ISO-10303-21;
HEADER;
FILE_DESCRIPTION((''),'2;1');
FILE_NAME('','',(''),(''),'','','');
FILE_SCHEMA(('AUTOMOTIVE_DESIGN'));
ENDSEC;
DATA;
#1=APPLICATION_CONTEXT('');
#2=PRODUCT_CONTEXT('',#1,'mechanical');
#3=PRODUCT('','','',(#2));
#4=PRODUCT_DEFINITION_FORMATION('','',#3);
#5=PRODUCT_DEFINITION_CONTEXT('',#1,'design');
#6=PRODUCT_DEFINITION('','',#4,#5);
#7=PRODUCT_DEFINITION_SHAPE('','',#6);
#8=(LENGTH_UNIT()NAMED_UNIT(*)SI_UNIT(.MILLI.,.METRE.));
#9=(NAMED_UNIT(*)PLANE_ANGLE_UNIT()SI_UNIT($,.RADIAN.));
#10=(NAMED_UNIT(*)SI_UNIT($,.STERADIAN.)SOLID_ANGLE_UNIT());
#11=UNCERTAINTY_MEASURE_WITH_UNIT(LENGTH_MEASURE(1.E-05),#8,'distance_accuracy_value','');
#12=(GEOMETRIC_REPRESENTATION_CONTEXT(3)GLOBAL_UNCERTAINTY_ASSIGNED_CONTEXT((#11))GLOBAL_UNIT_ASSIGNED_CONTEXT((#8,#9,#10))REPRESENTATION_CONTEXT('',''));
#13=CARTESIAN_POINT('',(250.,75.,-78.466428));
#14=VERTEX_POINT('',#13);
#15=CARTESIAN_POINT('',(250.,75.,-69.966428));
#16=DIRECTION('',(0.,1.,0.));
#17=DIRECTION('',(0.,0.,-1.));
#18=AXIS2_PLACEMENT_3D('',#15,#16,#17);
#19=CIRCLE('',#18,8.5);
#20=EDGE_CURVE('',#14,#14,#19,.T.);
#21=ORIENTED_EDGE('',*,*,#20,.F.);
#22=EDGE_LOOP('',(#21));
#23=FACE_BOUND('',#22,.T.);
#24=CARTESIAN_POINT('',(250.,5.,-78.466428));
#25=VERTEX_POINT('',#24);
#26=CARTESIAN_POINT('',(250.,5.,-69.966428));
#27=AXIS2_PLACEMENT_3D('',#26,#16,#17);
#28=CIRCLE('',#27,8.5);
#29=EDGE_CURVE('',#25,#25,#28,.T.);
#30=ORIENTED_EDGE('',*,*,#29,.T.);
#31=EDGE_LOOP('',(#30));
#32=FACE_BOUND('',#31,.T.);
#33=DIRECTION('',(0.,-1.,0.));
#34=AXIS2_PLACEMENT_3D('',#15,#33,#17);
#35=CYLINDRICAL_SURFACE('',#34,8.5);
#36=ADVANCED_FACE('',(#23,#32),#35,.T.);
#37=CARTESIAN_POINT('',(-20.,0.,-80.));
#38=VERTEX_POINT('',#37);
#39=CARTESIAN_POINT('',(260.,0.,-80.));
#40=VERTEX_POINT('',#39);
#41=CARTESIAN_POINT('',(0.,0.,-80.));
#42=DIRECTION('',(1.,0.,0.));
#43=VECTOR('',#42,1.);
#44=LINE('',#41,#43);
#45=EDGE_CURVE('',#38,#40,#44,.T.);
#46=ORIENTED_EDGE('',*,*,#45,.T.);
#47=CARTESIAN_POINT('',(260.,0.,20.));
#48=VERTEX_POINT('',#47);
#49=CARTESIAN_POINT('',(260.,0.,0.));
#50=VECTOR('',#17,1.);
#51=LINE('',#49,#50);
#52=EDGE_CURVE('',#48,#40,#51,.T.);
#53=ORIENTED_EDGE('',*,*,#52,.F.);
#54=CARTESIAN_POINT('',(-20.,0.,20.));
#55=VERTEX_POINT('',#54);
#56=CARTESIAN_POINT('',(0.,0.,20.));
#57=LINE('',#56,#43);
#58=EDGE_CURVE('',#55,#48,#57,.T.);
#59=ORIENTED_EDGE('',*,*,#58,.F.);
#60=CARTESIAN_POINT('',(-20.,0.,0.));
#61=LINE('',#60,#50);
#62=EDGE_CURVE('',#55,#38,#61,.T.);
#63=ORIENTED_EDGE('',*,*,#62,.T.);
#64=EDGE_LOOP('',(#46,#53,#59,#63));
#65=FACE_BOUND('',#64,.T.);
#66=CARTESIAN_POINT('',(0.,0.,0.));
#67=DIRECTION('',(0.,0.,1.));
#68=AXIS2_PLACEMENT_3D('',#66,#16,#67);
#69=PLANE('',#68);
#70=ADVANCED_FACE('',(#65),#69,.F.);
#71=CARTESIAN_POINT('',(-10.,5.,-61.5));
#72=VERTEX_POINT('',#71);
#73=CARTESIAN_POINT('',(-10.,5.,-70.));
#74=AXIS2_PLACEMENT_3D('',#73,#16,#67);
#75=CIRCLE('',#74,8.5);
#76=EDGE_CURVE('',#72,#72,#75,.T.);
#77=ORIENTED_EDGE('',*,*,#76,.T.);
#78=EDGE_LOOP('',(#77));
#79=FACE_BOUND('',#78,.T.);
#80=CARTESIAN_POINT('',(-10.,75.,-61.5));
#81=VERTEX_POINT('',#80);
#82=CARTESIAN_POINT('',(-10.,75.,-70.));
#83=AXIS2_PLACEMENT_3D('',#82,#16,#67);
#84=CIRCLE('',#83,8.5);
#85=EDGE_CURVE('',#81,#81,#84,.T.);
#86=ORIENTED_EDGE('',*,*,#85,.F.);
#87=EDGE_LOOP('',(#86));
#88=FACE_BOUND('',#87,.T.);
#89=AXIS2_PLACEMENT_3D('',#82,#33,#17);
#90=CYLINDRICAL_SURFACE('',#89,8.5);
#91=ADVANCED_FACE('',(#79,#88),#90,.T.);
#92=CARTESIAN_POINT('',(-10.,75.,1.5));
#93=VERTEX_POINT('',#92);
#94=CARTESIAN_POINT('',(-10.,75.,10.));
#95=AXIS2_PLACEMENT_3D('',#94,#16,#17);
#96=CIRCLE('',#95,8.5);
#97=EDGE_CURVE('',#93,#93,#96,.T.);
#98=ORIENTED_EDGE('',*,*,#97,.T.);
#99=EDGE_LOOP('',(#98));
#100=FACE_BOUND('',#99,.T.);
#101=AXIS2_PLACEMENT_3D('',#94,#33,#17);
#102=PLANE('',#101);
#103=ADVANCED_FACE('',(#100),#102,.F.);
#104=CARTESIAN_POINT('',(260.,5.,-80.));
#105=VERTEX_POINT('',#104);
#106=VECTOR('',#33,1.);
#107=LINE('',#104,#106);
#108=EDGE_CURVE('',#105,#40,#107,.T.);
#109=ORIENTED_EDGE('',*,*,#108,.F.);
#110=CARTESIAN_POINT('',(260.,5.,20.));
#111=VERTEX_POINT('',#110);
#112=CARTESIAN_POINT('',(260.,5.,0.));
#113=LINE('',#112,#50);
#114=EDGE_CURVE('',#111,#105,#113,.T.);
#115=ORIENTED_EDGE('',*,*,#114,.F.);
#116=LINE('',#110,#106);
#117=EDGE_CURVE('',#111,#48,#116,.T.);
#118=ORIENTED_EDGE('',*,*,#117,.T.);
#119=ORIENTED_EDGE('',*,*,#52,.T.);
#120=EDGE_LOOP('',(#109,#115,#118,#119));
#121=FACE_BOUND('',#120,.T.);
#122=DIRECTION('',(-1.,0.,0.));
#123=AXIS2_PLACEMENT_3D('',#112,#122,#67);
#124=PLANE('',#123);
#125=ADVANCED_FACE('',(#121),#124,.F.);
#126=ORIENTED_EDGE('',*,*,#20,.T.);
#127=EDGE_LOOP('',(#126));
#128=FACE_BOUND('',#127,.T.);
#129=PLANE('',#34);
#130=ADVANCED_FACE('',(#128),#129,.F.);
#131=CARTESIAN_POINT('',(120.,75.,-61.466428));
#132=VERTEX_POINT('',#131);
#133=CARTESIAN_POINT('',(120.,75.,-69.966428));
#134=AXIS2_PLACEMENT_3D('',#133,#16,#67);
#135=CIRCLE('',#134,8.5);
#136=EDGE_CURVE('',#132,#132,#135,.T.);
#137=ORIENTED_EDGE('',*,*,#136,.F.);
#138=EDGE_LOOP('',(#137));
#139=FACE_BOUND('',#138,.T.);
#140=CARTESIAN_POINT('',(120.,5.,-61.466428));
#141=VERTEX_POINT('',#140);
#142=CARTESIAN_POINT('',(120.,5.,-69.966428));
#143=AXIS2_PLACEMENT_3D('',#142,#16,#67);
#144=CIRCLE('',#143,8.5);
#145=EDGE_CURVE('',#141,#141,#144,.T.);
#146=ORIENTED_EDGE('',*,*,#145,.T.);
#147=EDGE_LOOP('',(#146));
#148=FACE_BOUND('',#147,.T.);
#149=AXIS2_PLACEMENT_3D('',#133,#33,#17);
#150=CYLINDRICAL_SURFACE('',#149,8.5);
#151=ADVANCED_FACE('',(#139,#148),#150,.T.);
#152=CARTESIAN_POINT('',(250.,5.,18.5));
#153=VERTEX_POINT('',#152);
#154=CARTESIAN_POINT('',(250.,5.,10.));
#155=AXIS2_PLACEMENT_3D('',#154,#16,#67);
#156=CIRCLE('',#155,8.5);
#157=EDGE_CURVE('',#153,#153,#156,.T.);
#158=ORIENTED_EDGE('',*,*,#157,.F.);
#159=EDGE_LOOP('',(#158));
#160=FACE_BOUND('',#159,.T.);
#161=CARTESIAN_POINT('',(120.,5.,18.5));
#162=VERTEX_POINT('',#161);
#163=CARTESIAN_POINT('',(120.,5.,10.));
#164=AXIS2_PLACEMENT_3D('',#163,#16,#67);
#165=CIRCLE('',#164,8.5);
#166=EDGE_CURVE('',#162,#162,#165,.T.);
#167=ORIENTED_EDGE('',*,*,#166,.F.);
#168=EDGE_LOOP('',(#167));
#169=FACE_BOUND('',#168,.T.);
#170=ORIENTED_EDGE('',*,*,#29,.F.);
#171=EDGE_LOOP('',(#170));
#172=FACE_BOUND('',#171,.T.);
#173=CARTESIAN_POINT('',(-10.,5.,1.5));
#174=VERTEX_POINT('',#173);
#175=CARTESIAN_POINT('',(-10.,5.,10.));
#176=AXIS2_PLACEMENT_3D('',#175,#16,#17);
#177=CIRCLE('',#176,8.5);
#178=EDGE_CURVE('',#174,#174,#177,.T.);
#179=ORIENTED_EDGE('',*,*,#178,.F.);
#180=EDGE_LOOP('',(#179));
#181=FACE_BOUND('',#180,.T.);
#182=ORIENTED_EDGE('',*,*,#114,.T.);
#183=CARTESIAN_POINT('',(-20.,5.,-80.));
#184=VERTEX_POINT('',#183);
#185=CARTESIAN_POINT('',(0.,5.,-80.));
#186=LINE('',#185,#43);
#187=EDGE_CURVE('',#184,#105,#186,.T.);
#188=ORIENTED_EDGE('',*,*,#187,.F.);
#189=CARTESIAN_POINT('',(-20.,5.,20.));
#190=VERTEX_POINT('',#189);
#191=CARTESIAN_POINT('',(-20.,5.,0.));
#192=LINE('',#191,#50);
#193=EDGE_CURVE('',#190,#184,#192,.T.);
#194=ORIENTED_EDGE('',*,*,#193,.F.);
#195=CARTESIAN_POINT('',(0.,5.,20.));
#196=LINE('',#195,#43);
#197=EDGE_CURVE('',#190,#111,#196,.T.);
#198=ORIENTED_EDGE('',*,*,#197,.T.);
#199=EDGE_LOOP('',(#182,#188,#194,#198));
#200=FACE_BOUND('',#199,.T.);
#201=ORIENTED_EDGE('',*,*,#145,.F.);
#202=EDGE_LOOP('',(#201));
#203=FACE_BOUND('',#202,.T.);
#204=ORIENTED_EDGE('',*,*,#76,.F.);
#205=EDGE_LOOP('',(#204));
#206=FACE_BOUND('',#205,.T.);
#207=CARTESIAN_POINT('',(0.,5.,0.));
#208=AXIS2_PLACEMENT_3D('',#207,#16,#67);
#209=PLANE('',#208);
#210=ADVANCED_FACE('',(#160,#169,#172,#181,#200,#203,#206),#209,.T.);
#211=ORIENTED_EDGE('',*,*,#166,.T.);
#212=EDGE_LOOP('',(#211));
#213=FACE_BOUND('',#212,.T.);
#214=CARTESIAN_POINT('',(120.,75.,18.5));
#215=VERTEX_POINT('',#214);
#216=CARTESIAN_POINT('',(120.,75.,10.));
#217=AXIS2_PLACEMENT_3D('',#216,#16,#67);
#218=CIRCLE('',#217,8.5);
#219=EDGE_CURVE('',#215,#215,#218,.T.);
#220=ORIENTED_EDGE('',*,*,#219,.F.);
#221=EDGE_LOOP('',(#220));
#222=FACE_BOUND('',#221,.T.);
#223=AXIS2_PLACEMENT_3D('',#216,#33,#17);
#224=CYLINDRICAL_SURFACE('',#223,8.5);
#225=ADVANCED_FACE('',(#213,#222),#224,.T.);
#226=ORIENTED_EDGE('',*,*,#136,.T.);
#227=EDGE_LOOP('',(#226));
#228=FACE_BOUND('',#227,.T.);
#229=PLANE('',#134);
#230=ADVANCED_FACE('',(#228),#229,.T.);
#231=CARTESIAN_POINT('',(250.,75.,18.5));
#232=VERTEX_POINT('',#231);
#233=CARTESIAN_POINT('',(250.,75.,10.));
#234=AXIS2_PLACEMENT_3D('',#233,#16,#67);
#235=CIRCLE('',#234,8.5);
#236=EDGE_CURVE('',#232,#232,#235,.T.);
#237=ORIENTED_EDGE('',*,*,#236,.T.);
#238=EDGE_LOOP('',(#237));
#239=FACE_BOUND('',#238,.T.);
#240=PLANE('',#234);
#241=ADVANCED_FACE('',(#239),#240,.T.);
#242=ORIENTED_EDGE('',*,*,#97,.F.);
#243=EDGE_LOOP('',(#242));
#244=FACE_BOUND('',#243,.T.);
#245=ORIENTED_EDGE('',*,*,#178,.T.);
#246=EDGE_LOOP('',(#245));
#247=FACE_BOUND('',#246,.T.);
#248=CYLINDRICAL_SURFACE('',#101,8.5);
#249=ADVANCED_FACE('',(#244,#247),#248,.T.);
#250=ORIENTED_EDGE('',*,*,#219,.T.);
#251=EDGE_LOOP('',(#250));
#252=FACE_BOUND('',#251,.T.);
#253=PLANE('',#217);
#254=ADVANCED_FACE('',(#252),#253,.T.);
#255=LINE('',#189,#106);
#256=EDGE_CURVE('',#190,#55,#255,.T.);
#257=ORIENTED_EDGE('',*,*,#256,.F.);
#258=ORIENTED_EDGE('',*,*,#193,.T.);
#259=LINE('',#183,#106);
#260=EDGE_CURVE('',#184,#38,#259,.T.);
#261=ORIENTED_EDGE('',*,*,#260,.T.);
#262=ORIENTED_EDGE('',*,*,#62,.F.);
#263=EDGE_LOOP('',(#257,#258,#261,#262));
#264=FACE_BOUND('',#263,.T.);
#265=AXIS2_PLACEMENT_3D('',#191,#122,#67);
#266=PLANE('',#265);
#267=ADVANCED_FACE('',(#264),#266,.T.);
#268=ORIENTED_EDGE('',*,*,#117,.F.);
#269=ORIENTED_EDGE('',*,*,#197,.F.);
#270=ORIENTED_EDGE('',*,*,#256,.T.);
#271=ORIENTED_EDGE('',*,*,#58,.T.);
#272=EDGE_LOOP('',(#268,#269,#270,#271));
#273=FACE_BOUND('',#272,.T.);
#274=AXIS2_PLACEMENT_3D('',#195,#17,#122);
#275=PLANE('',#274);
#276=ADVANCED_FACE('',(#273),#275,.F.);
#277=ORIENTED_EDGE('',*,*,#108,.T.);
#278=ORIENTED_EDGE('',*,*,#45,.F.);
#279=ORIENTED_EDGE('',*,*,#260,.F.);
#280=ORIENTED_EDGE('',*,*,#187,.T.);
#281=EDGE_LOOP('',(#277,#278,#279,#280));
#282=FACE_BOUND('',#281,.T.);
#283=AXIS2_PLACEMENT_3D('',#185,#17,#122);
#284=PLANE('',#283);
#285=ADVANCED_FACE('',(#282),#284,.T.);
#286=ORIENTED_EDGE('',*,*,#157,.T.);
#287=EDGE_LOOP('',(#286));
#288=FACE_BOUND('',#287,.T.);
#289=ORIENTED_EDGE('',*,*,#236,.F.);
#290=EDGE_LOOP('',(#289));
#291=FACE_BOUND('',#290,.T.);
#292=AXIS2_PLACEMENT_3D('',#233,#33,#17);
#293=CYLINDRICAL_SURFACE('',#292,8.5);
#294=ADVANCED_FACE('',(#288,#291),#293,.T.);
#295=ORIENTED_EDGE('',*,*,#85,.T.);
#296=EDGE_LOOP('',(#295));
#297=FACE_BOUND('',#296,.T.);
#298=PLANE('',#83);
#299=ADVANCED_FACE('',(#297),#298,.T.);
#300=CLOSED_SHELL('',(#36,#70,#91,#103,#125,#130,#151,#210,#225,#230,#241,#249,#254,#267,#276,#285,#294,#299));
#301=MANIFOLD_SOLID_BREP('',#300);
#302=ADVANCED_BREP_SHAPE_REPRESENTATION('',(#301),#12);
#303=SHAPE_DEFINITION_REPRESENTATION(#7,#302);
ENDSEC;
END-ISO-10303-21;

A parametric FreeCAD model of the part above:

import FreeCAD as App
import Part
import Sketcher

V = App.Vector
Q = App.Units.Quantity

doc = App.newDocument("Part")
body = doc.addObject("PartDesign::Body", "Body")

# Sketch on XZ plane
sketch1 = body.newObject("Sketcher::SketchObject", "Sketch")
sketch1.AttachmentSupport = (doc.getObject("XZ_Plane"), [""])
sketch1.MapMode = "FlatFace"
sketch1.addGeometry([
    Part.LineSegment(V(-20, -80, 0), V(-20, 20, 0)),
    Part.LineSegment(V(-20, 20, 0), V(260, 20, 0)),
    Part.LineSegment(V(260, 20, 0), V(260, -80, 0)),
    Part.LineSegment(V(260, -80, 0), V(-20, -80, 0)),
], False)
sketch1.addConstraint([
    Sketcher.Constraint("Coincident", 0, 2, 1, 1),
    Sketcher.Constraint("Coincident", 1, 2, 2, 1),
    Sketcher.Constraint("Coincident", 2, 2, 3, 1),
    Sketcher.Constraint("Coincident", 3, 2, 0, 1),
    Sketcher.Constraint("Vertical", 0),
    Sketcher.Constraint("Horizontal", 1),
    Sketcher.Constraint("Vertical", 2),
    Sketcher.Constraint("Horizontal", 3),
    Sketcher.Constraint("DistanceX", 1, 1, 1, 2, Q("280 mm")),
    Sketcher.Constraint("DistanceY", 0, 1, 0, 2, Q("100 mm")),
    Sketcher.Constraint("DistanceX", 0, 2, -1, 1, Q("20 mm")),
    Sketcher.Constraint("DistanceY", -1, 1, 0, 2, Q("20 mm")),
])
pad1 = body.newObject("PartDesign::Pad", "Pad")
pad1.Profile = sketch1
pad1.Length = 5
pad1.Reversed = True

# Sketch on XZ plane
sketch2 = body.newObject("Sketcher::SketchObject", "Sketch001")
sketch2.AttachmentSupport = (doc.getObject("XZ_Plane"), [""])
sketch2.MapMode = "FlatFace"
sketch2.AttachmentOffset = App.Placement(V(0, 0, -5), App.Rotation())
sketch2.addGeometry([
    Part.Circle(V(-10, -70, 0), V(0, 0, 1), 8),  # 0
    Part.Circle(V(-10, 10, 0), V(0, 0, 1), 8),  # 1
    Part.Circle(V(250, -70, 0), V(0, 0, 1), 8),  # 2
    Part.Circle(V(250, 10, 0), V(0, 0, 1), 8),  # 3
    Part.Circle(V(120, -70, 0), V(0, 0, 1), 8),  # 4
    Part.Circle(V(120, 10, 0), V(0, 0, 1), 8),  # 5
], False)
sketch2.addConstraint([
    Sketcher.Constraint("Equal", 0, 1),
    Sketcher.Constraint("Equal", 1, 2),
    Sketcher.Constraint("Equal", 2, 3),
    Sketcher.Constraint("Equal", 3, 4),
    Sketcher.Constraint("Equal", 4, 5),
    Sketcher.Constraint("Horizontal", 1, 3, 3, 3),
    Sketcher.Constraint("Horizontal", 2, 3, 4, 3),
    Sketcher.Constraint("Horizontal", 3, 3, 5, 3),
    Sketcher.Constraint("Vertical", 0, 3, 1, 3),
    Sketcher.Constraint("Vertical", 2, 3, 3, 3),
    Sketcher.Constraint("Vertical", 4, 3, 5, 3),
    Sketcher.Constraint("Diameter", 0, Q("17 mm")),
    Sketcher.Constraint("DistanceX", 0, 3, -1, 1, Q("10 mm")),
    Sketcher.Constraint("DistanceY", 0, 3, -1, 1, Q("70 mm")),
    Sketcher.Constraint("DistanceY", -1, 1, 1, 3, Q("10 mm")),
    Sketcher.Constraint("DistanceX", -1, 1, 2, 3, Q("250 mm")),
    Sketcher.Constraint("DistanceX", -1, 1, 4, 3, Q("120 mm")),
    Sketcher.Constraint("DistanceY", 2, 3, -1, 1, Q("69.966428 mm")),
])
pad2 = body.newObject("PartDesign::Pad", "Pad001")
pad2.Profile = sketch2
pad2.Length = 70
pad2.Reversed = True

doc.recompute()
